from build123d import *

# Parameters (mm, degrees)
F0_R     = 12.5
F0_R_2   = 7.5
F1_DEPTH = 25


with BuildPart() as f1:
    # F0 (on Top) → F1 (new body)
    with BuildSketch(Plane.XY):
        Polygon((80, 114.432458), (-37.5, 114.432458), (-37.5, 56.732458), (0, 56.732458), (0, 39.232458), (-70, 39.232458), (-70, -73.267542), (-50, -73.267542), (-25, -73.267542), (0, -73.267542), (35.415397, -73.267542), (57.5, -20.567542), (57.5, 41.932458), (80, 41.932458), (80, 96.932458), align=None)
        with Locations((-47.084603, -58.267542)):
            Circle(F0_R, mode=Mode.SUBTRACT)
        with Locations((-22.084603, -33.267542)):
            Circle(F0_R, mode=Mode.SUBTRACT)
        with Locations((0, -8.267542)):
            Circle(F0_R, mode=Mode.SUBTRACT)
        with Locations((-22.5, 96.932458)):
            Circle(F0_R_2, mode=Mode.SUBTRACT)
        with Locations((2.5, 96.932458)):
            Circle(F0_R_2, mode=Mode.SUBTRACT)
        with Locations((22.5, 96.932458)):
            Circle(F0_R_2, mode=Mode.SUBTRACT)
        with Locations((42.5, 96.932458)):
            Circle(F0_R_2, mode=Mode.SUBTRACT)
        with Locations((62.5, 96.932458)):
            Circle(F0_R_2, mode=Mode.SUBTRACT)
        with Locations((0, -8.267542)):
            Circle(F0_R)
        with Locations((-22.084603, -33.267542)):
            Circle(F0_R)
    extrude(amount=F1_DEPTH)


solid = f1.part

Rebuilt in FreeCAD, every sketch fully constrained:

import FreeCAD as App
import Part
import Sketcher
Q = App.Units.Quantity

doc = App.newDocument("Part")
body = doc.addObject("PartDesign::Body", "Body")

# Sketch on XY plane
sketch1 = body.newObject("Sketcher::SketchObject", "Sketch")
sketch1.AttachmentSupport = (doc.getObject("XY_Plane"), [""])
sketch1.MapMode = "FlatFace"
sketch1.addGeometry([
    Part.LineSegment(App.Vector(80, 114, 0), App.Vector(-38, 114, 0)),  # 0
    Part.LineSegment(App.Vector(-38, 114, 0), App.Vector(-38, 57, 0)),  # 1
    Part.LineSegment(App.Vector(-38, 57, 0), App.Vector(0, 57, 0)),  # 2
    Part.LineSegment(App.Vector(0, 57, 0), App.Vector(0, 39, 0)),  # 3
    Part.LineSegment(App.Vector(0, 39, 0), App.Vector(-70, 39, 0)),  # 4
    Part.LineSegment(App.Vector(-70, 39, 0), App.Vector(-70, -73, 0)),  # 5
    Part.LineSegment(App.Vector(-70, -73, 0), App.Vector(35, -73, 0)),  # 6
    Part.LineSegment(App.Vector(35, -73, 0), App.Vector(58, -21, 0)),  # 7
    Part.LineSegment(App.Vector(58, -21, 0), App.Vector(58, 42, 0)),  # 8
    Part.LineSegment(App.Vector(58, 42, 0), App.Vector(80, 42, 0)),  # 9
    Part.LineSegment(App.Vector(80, 42, 0), App.Vector(80, 114, 0)),  # 10
    Part.Circle(App.Vector(-47, -58, 0), App.Vector(0, 0, 1), 12),  # 11
    Part.Circle(App.Vector(-22, 97, 0), App.Vector(0, 0, 1), 8),  # 12
    Part.Circle(App.Vector(2, 97, 0), App.Vector(0, 0, 1), 8),  # 13
    Part.Circle(App.Vector(22, 97, 0), App.Vector(0, 0, 1), 8),  # 14
    Part.Circle(App.Vector(42, 97, 0), App.Vector(0, 0, 1), 8),  # 15
    Part.Circle(App.Vector(62, 97, 0), App.Vector(0, 0, 1), 8),  # 16
], False)
sketch1.addConstraint([
    Sketcher.Constraint("Coincident", 0, 2, 1, 1),
    Sketcher.Constraint("Coincident", 1, 2, 2, 1),
    Sketcher.Constraint("Coincident", 2, 2, 3, 1),
    Sketcher.Constraint("Coincident", 3, 2, 4, 1),
    Sketcher.Constraint("Coincident", 4, 2, 5, 1),
    Sketcher.Constraint("Coincident", 5, 2, 6, 1),
    Sketcher.Constraint("Coincident", 6, 2, 7, 1),
    Sketcher.Constraint("Coincident", 7, 2, 8, 1),
    Sketcher.Constraint("Coincident", 8, 2, 9, 1),
    Sketcher.Constraint("Coincident", 9, 2, 10, 1),
    Sketcher.Constraint("Coincident", 10, 2, 0, 1),
    Sketcher.Constraint("Horizontal", 0),
    Sketcher.Constraint("Vertical", 1),
    Sketcher.Constraint("Horizontal", 2),
    Sketcher.Constraint("Vertical", 3),
    Sketcher.Constraint("Horizontal", 4),
    Sketcher.Constraint("Vertical", 5),
    Sketcher.Constraint("Horizontal", 6),
    Sketcher.Constraint("Vertical", 8),
    Sketcher.Constraint("Horizontal", 9),
    Sketcher.Constraint("Vertical", 10),
    Sketcher.Constraint("Equal", 12, 13),
    Sketcher.Constraint("Equal", 13, 14),
    Sketcher.Constraint("Equal", 14, 15),
    Sketcher.Constraint("Equal", 15, 16),
    Sketcher.Constraint("Symmetric", 12, 3, 14, 3, -2),
    Sketcher.Constraint("PointOnObject", 2, 2, -2),
    Sketcher.Constraint("Horizontal", 12, 3, 13, 3),
    Sketcher.Constraint("Horizontal", 14, 3, 15, 3),
    Sketcher.Constraint("Horizontal", 15, 3, 16, 3),
    Sketcher.Constraint("Diameter", 11, Q("25 mm")),
    Sketcher.Constraint("Diameter", 12, Q("15 mm")),
    Sketcher.Constraint("DistanceX", 4, 2, 4, 1, Q("70 mm")),
    Sketcher.Constraint("DistanceX", 0, 2, 0, 1, Q("117.5 mm")),
    Sketcher.Constraint("DistanceX", 2, 1, 2, 2, Q("37.5 mm")),
    Sketcher.Constraint("DistanceX", 9, 1, 9, 2, Q("22.5 mm")),
    Sketcher.Constraint("DistanceY", 1, 2, 1, 1, Q("57.7 mm")),
    Sketcher.Constraint("DistanceY", 3, 2, 3, 1, Q("17.5 mm")),
    Sketcher.Constraint("DistanceY", 5, 2, 5, 1, Q("112.5 mm")),
    Sketcher.Constraint("DistanceY", 8, 1, 8, 2, Q("62.5 mm")),
    Sketcher.Constraint("DistanceY", 10, 1, 10, 2, Q("72.5 mm")),
    Sketcher.Constraint("DistanceX", 12, 3, 13, 3, Q("25 mm")),
    Sketcher.Constraint("DistanceX", 13, 3, 14, 3, Q("20 mm")),
    Sketcher.Constraint("DistanceX", 14, 3, 15, 3, Q("20 mm")),
    Sketcher.Constraint("DistanceX", 15, 3, 16, 3, Q("20 mm")),
    Sketcher.Constraint("DistanceY", 5, 2, 11, 3, Q("15 mm")),
    Sketcher.Constraint("DistanceY", 8, 2, 16, 3, Q("55 mm")),
    Sketcher.Constraint("DistanceX", 11, 3, 6, 2, Q("82.5 mm")),
    Sketcher.Constraint("Distance", 7, Q("57.140351 mm")),
    Sketcher.Constraint("DistanceY", 7, 2, -1, 1, Q("20.567542 mm")),
])
pad1 = body.newObject("PartDesign::Pad", "Pad")
pad1.Profile = sketch1
pad1.Length = 25

doc.recompute()
